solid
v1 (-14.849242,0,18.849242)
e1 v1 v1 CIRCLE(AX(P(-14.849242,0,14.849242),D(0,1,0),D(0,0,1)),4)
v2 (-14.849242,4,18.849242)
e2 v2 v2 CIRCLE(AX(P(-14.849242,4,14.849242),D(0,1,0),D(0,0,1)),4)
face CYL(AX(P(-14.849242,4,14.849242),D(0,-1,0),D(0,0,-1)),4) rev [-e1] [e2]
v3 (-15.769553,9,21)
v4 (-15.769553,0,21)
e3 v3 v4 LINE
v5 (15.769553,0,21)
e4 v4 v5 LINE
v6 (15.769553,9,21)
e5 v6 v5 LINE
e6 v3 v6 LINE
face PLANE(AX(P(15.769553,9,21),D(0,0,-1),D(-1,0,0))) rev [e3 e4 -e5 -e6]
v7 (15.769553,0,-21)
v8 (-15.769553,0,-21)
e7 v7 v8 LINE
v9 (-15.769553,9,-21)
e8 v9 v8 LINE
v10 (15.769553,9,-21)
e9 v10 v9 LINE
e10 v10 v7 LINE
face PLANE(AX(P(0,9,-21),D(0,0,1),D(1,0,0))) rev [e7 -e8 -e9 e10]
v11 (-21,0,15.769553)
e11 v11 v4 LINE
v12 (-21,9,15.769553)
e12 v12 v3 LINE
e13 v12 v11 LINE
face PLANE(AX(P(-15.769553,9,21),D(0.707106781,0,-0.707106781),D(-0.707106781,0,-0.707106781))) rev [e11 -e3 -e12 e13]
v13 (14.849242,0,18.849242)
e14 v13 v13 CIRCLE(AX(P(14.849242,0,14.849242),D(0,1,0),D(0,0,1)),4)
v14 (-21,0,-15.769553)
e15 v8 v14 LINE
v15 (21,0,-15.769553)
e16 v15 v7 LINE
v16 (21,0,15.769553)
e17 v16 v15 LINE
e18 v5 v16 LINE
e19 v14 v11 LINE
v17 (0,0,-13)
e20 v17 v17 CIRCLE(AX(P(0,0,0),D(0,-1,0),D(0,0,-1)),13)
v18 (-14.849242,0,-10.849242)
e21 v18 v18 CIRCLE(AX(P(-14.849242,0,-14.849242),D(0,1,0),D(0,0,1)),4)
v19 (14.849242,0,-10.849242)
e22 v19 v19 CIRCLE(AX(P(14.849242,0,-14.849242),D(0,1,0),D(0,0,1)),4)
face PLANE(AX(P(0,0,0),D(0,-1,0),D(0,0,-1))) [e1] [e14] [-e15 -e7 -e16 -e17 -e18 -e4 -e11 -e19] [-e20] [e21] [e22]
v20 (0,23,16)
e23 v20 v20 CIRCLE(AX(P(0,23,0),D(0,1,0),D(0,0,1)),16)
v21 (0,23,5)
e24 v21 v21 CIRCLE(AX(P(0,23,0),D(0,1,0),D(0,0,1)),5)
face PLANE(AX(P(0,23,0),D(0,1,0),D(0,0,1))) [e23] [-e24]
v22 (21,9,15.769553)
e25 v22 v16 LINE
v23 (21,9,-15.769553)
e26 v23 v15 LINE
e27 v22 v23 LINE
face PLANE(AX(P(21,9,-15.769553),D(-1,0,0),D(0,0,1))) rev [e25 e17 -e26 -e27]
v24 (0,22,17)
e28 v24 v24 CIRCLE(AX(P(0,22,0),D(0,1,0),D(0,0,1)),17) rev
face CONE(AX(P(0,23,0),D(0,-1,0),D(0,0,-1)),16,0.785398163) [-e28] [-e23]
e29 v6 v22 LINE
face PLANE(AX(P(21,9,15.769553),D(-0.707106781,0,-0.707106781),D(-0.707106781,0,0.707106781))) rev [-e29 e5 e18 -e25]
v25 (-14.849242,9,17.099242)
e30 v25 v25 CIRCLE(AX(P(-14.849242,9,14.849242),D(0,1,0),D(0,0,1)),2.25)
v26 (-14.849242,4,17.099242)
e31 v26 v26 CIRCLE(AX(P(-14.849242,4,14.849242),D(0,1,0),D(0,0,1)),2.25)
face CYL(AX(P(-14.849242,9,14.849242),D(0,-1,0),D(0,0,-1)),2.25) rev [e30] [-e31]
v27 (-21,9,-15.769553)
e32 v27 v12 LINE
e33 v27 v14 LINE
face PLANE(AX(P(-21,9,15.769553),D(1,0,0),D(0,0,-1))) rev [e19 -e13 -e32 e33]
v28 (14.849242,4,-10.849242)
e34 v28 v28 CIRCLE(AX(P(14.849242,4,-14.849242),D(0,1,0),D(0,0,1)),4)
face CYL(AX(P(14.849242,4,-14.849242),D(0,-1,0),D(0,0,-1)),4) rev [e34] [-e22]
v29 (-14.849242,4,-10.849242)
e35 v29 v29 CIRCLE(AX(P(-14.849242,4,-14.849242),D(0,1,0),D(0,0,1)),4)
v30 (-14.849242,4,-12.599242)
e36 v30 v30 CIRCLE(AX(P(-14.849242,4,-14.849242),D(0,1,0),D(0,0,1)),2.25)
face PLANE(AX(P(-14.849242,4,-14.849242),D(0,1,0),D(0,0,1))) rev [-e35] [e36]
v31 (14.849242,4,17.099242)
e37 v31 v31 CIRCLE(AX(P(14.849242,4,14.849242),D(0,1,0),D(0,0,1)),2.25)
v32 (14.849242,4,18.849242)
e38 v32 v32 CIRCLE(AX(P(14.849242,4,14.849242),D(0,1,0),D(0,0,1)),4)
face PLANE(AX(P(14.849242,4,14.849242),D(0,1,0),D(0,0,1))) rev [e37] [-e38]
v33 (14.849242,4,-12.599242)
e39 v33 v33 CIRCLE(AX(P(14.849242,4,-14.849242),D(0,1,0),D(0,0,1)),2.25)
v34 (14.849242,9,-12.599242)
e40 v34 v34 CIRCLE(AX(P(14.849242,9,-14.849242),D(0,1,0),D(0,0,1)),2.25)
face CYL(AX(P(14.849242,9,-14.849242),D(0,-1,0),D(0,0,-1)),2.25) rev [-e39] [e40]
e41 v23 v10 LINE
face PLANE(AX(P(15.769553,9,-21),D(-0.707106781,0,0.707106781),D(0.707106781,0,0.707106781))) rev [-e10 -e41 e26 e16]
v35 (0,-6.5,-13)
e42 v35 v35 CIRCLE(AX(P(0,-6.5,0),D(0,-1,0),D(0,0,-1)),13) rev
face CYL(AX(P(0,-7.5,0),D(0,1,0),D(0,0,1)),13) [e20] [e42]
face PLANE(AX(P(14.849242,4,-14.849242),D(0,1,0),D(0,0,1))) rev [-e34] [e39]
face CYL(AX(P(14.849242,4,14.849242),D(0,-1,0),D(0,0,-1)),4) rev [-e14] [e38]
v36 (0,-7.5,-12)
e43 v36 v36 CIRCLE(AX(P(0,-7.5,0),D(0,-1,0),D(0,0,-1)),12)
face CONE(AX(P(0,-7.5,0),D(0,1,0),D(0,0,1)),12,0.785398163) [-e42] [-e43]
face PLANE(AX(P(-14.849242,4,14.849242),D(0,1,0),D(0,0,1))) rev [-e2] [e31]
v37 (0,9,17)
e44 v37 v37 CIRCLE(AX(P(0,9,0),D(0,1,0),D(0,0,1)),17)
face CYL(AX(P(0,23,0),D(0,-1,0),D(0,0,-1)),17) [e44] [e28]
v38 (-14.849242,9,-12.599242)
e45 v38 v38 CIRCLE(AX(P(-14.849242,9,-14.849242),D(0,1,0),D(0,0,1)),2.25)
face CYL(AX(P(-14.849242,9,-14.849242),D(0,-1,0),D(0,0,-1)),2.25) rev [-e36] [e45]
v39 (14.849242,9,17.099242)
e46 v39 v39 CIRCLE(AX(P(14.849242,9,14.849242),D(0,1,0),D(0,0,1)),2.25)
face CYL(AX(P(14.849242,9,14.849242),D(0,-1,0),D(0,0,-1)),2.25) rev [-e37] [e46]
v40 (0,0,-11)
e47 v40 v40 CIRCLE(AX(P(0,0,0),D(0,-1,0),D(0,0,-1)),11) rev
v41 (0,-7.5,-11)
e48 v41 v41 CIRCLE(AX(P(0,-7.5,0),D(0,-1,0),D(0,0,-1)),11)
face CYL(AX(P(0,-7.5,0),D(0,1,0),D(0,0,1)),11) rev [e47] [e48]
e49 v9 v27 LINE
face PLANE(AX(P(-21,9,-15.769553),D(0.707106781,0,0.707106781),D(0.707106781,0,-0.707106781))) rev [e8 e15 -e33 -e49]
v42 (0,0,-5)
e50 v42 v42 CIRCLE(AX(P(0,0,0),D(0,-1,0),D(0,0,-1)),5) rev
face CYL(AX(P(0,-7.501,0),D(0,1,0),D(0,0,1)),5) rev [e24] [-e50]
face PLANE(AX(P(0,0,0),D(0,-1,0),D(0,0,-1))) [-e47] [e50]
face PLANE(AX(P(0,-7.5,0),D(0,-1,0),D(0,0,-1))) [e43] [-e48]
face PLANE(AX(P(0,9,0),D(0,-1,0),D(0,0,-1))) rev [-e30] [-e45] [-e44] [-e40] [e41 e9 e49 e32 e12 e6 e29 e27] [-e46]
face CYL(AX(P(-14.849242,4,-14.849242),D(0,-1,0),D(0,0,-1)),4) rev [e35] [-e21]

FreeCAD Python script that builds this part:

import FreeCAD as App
import Part
import Sketcher
from FreeCAD import Vector
Q = App.Units.Quantity


def edges_at(feature, points):
    """Names of the edges that pass closest to the given points."""
    edges = feature.Shape.Edges
    near = lambda p: min(range(len(edges)), key=lambda i: edges[i].distToShape(Part.Vertex(*p))[0])
    return sorted({f"Edge{near(p) + 1}" for p in points})

doc = App.newDocument("Part")
body = doc.addObject("PartDesign::Body", "Body")

sketch1 = doc.addObject("Sketcher::SketchObject", "Sketch")
body.addObject(sketch1)
sketch1.AttachmentSupport = (doc.XZ_Plane, [""])
sketch1.MapMode = "FlatFace"
sketch1.addGeometry([
    Part.LineSegment(Vector(15.8, -21, 0), Vector(-15.8, -21, 0)),
    Part.LineSegment(Vector(-15.8, -21, 0), Vector(-21, -15.8, 0)),
    Part.LineSegment(Vector(-21, -15.8, 0), Vector(-21, 15.8, 0)),
    Part.LineSegment(Vector(-21, 15.8, 0), Vector(-15.8, 21, 0)),
    Part.LineSegment(Vector(-15.8, 21, 0), Vector(15.8, 21, 0)),
    Part.LineSegment(Vector(15.8, 21, 0), Vector(21, 15.8, 0)),
    Part.LineSegment(Vector(21, 15.8, 0), Vector(21, -15.8, 0)),
    Part.LineSegment(Vector(21, -15.8, 0), Vector(15.8, -21, 0)),
    Part.Circle(Vector(14.8, 14.8, 0), Vector(0, 0, 1), 2.2),
    Part.Circle(Vector(-14.8, 14.8, 0), Vector(0, 0, 1), 2.2),
    Part.Circle(Vector(14.8, -14.8, 0), Vector(0, 0, 1), 2.2),
    Part.Circle(Vector(-14.8, -14.8, 0), Vector(0, 0, 1), 2.2),
], False)
sketch1.addConstraint([
    Sketcher.Constraint("Coincident", 0, 2, 1, 1),
    Sketcher.Constraint("Coincident", 1, 2, 2, 1),
    Sketcher.Constraint("Coincident", 2, 2, 3, 1),
    Sketcher.Constraint("Coincident", 3, 2, 4, 1),
    Sketcher.Constraint("Coincident", 4, 2, 5, 1),
    Sketcher.Constraint("Coincident", 5, 2, 6, 1),
    Sketcher.Constraint("Coincident", 6, 2, 7, 1),
    Sketcher.Constraint("Coincident", 7, 2, 0, 1),
    Sketcher.Constraint("Horizontal", 0),
    Sketcher.Constraint("Vertical", 2),
    Sketcher.Constraint("Horizontal", 4),
    Sketcher.Constraint("Vertical", 6),
    Sketcher.Constraint("Equal", 8, 9),
    Sketcher.Constraint("Equal", 9, 10),
    Sketcher.Constraint("Equal", 10, 11),
    Sketcher.Constraint("Symmetric", 9, 3, 10, 3, -1, 1),
    Sketcher.Constraint("Symmetric", 8, 3, 11, 3, -1, 1),
    Sketcher.Constraint("Symmetric", 0, 2, 4, 2, -1, 1),
    Sketcher.Constraint("Symmetric", 1, 2, 5, 2, -1, 1),
    Sketcher.Constraint("Symmetric", 8, 3, 9, 3, -2),
    Sketcher.Constraint("Perpendicular", 1, 3),
    Sketcher.Constraint("Perpendicular", 5, 7),
    Sketcher.Constraint("Horizontal", 2, 2, 5, 2),
    Sketcher.Constraint("Horizontal", 1, 2, 6, 2),
    Sketcher.Constraint("Vertical", 0, 2, 3, 2),
    Sketcher.Constraint("Equal", 4, 2),
    Sketcher.Constraint("Diameter", 8, Q("4.5 mm")),
    Sketcher.Constraint("DistanceY", 0, 2, -1, 1, Q("21 mm")),
    Sketcher.Constraint("Distance", 1, Q("7.39697 mm")),
    Sketcher.Constraint("DistanceX", 0, 2, 11, 3, Q("0.92031 mm")),
    Sketcher.Constraint("DistanceY", 1, 2, 11, 3, Q("0.92031 mm")),
])
pad1 = doc.addObject("PartDesign::Pad", "Pad")
body.addObject(pad1)
pad1.Profile = sketch1
pad1.Length = 9
pad1.Reversed = True

sketch2 = doc.addObject("Sketcher::SketchObject", "Sketch001")
body.addObject(sketch2)
sketch2.AttachmentSupport = (doc.XZ_Plane, [""])
sketch2.MapMode = "FlatFace"
sketch2.addGeometry([
    Part.Circle(Vector(-14.8, -14.8, 0), Vector(0, 0, 1), 4),
    Part.Circle(Vector(14.8, -14.8, 0), Vector(0, 0, 1), 4),
    Part.Circle(Vector(14.8, 14.8, 0), Vector(0, 0, 1), 4),
    Part.Circle(Vector(-14.8, 14.8, 0), Vector(0, 0, 1), 4),
], False)
sketch2.addConstraint([
    Sketcher.Constraint("Equal", 0, 1),
    Sketcher.Constraint("Equal", 1, 2),
    Sketcher.Constraint("Equal", 2, 3),
    Sketcher.Constraint("Symmetric", 0, 3, 2, 3, -1, 1),
    Sketcher.Constraint("Symmetric", 1, 3, 3, 3, -1, 1),
    Sketcher.Constraint("Symmetric", 0, 3, 1, 3, -2),
    Sketcher.Constraint("Diameter", 0, Q("8 mm")),
    Sketcher.Constraint("DistanceX", 0, 3, -1, 1, Q("14.849242 mm")),
    Sketcher.Constraint("DistanceY", 0, 3, -1, 1, Q("14.849242 mm")),
])
pocket1 = doc.addObject("PartDesign::Pocket", "Pocket")
body.addObject(pocket1)
pocket1.Profile = sketch2
pocket1.Length = 4

sketch3 = doc.addObject("Sketcher::SketchObject", "Sketch002")
body.addObject(sketch3)
sketch3.AttachmentSupport = (doc.XZ_Plane, [""])
sketch3.MapMode = "FlatFace"
sketch3.AttachmentOffset = App.Placement(Vector(0, 0, -9), App.Rotation())
sketch3.addGeometry(Part.Circle(Vector(0, 0, 0), Vector(0, 0, 1), 17), False)
sketch3.addConstraint([
    Sketcher.Constraint("Coincident", 0, 3, -1, 1),
    Sketcher.Constraint("Diameter", 0, Q("34 mm")),
])
pad2 = doc.addObject("PartDesign::Pad", "Pad001")
body.addObject(pad2)
pad2.Profile = sketch3
pad2.Length = 14
pad2.Reversed = True

sketch4 = doc.addObject("Sketcher::SketchObject", "Sketch003")
body.addObject(sketch4)
sketch4.AttachmentSupport = (doc.XZ_Plane, [""])
sketch4.MapMode = "FlatFace"
sketch4.addGeometry([
    Part.Circle(Vector(0, 0, 0), Vector(0, 0, 1), 13),
    Part.Circle(Vector(0, 0, 0), Vector(0, 0, 1), 11),
], False)
sketch4.addConstraint([
    Sketcher.Constraint("Coincident", 0, 3, -1, 1),
    Sketcher.Constraint("Coincident", 1, 3, -1, 1),
    Sketcher.Constraint("Diameter", 0, Q("26 mm")),
    Sketcher.Constraint("Diameter", 1, Q("22 mm")),
])
pad3 = doc.addObject("PartDesign::Pad", "Pad002")
body.addObject(pad3)
pad3.Profile = sketch4
pad3.Length = 7.5

sketch5 = doc.addObject("Sketcher::SketchObject", "Sketch004")
body.addObject(sketch5)
sketch5.AttachmentSupport = (doc.XZ_Plane, [""])
sketch5.MapMode = "FlatFace"
sketch5.AttachmentOffset = App.Placement(Vector(0, 0, -23), App.Rotation())
sketch5.addGeometry(Part.Circle(Vector(0, 0, 0), Vector(0, 0, 1), 5), False)
sketch5.addConstraint([
    Sketcher.Constraint("Coincident", 0, 3, -1, 1),
    Sketcher.Constraint("Diameter", 0, Q("10 mm")),
])
pocket2 = doc.addObject("PartDesign::Pocket", "Pocket001")
body.addObject(pocket2)
pocket2.Profile = sketch5
pocket2.Type = "UpToFirst"
pocket2.Reversed = True
doc.recompute()

chamfer = doc.addObject("PartDesign::Chamfer", "Chamfer")
body.addObject(chamfer)
chamfer.Base = (pocket2, edges_at(pocket2, [(0, 23, -17), (0, -7.5, 13)]))
chamfer.Size = 1

doc.recompute()
